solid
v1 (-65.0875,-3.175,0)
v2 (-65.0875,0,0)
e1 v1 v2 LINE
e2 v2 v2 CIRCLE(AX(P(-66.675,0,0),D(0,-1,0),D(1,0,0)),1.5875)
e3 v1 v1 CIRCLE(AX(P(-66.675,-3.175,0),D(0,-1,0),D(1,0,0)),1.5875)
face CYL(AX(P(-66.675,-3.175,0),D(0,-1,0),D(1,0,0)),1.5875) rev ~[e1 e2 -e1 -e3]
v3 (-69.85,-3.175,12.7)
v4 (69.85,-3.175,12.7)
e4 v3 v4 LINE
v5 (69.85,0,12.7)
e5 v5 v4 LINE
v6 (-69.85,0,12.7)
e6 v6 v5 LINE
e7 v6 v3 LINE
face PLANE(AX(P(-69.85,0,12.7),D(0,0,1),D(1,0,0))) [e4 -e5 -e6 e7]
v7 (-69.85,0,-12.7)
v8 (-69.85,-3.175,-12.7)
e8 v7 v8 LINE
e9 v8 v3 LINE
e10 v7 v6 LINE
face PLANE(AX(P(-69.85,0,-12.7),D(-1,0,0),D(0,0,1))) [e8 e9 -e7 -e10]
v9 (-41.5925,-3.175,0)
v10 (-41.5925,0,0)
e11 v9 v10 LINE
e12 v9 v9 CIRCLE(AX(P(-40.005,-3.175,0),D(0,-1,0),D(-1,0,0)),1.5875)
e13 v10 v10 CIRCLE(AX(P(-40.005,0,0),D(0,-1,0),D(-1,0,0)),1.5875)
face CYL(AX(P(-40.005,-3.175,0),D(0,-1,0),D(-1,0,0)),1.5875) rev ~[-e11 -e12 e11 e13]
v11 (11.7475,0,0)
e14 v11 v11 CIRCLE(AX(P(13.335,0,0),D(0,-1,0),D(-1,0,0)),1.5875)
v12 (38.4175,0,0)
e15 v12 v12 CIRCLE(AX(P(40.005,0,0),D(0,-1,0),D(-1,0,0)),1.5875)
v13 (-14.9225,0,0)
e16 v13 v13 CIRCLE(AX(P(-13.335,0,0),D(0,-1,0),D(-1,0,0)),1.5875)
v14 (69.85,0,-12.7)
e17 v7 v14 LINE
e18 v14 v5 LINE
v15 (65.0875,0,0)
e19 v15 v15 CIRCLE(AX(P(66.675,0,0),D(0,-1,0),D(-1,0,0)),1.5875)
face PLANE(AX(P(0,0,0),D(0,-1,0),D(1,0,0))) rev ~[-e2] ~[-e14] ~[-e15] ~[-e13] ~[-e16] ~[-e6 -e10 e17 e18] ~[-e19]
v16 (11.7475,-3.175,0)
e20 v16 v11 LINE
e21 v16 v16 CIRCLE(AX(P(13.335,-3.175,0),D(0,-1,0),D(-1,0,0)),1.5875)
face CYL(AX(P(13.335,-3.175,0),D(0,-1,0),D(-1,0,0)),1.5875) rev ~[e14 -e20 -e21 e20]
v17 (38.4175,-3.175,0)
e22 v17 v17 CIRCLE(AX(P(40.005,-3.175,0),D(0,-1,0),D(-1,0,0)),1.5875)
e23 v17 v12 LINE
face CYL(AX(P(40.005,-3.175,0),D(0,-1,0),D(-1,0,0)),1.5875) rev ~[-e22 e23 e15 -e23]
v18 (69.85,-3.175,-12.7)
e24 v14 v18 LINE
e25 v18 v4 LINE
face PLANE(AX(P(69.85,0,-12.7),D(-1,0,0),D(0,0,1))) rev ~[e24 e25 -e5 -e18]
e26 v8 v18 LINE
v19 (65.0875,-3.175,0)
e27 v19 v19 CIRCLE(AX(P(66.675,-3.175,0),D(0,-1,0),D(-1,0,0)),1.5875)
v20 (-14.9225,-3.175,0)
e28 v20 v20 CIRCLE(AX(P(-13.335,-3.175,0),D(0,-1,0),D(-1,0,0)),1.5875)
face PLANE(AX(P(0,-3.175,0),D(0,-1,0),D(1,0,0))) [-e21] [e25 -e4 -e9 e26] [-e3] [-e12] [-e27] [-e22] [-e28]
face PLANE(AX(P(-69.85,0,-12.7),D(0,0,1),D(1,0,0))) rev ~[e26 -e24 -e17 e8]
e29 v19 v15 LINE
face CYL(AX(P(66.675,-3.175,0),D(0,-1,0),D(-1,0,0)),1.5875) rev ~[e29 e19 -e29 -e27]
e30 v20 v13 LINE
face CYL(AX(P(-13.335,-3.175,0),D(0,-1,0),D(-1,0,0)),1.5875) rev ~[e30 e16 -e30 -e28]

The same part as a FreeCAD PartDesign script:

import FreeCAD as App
import Part
import Sketcher

V = App.Vector
Q = App.Units.Quantity

doc = App.newDocument("Part")
body = doc.addObject("PartDesign::Body", "Body")

# Sketch on XZ plane
sketch1 = body.newObject("Sketcher::SketchObject", "Sketch")
sketch1.AttachmentSupport = (doc.getObject("XZ_Plane"), [""])
sketch1.MapMode = "FlatFace"
sketch1.addGeometry([
    Part.LineSegment(V(-70, 13, 0), V(-70, -13, 0)),
    Part.LineSegment(V(-70, -13, 0), V(70, -13, 0)),
    Part.LineSegment(V(70, -13, 0), V(70, 13, 0)),
    Part.LineSegment(V(70, 13, 0), V(-70, 13, 0)),
], False)
sketch1.addConstraint([
    Sketcher.Constraint("Coincident", 0, 2, 1, 1),
    Sketcher.Constraint("Coincident", 1, 2, 2, 1),
    Sketcher.Constraint("Coincident", 2, 2, 3, 1),
    Sketcher.Constraint("Coincident", 3, 2, 0, 1),
    Sketcher.Constraint("Vertical", 0),
    Sketcher.Constraint("Horizontal", 1),
    Sketcher.Constraint("Vertical", 2),
    Sketcher.Constraint("Horizontal", 3),
    Sketcher.Constraint("Symmetric", 0, 2, 2, 2, -1, 1),
    Sketcher.Constraint("DistanceY", 0, 2, 0, 1, Q("1 in")),
    Sketcher.Constraint("DistanceX", 1, 1, 1, 2, Q("5.5 in")),
])
pad1 = body.newObject("PartDesign::Pad", "Pad")
pad1.Profile = sketch1
pad1.Length = Q("0.125 in")

# Sketch on XZ plane
sketch2 = body.newObject("Sketcher::SketchObject", "Sketch001")
sketch2.AttachmentSupport = (doc.getObject("XZ_Plane"), [""])
sketch2.MapMode = "FlatFace"
sketch2.AttachmentOffset = App.Placement(V(0, 0, 0.125 * 25.4), App.Rotation())
sketch2.addGeometry([
    Part.Circle(V(-40, 0, 0), V(0, 0, 1), 1.6),  # 0
    Part.Circle(V(-66.7, 0, 0), V(0, 0, 1), 1.6),  # 1
    Part.Circle(V(66.7, 0, 0), V(0, 0, 1), 1.6),  # 2
    Part.Circle(V(40, 0, 0), V(0, 0, 1), 1.6),  # 3
    Part.Circle(V(13.3, 0, 0), V(0, 0, 1), 1.6),  # 4
    Part.Circle(V(-13.3, 0, 0), V(0, 0, 1), 1.6),  # 5
], False)
sketch2.addConstraint([
    Sketcher.Constraint("Equal", 0, 1),
    Sketcher.Constraint("Equal", 1, 2),
    Sketcher.Constraint("Equal", 2, 3),
    Sketcher.Constraint("Equal", 3, 4),
    Sketcher.Constraint("Equal", 4, 5),
    Sketcher.Constraint("Symmetric", 1, 3, 2, 3, -1, 1),
    Sketcher.Constraint("Symmetric", 0, 3, 3, 3, -1, 1),
    Sketcher.Constraint("Symmetric", 4, 3, 5, 3, -1, 1),
    Sketcher.Constraint("PointOnObject", 0, 3, -1),
    Sketcher.Constraint("PointOnObject", 1, 3, -1),
    Sketcher.Constraint("PointOnObject", 4, 3, -1),
    Sketcher.Constraint("Diameter", 0, Q("0.125 in")),
    Sketcher.Constraint("DistanceX", 0, 3, 2, 3, Q("4.2 in")),
    Sketcher.Constraint("DistanceX", 4, 3, 2, 3, Q("2.1 in")),
    Sketcher.Constraint("DistanceX", 1, 3, 0, 3, Q("1.05 in")),
])
pocket1 = body.newObject("PartDesign::Pocket", "Pocket")
pocket1.Profile = sketch2
pocket1.Length = Q("1 in")

doc.recompute()
